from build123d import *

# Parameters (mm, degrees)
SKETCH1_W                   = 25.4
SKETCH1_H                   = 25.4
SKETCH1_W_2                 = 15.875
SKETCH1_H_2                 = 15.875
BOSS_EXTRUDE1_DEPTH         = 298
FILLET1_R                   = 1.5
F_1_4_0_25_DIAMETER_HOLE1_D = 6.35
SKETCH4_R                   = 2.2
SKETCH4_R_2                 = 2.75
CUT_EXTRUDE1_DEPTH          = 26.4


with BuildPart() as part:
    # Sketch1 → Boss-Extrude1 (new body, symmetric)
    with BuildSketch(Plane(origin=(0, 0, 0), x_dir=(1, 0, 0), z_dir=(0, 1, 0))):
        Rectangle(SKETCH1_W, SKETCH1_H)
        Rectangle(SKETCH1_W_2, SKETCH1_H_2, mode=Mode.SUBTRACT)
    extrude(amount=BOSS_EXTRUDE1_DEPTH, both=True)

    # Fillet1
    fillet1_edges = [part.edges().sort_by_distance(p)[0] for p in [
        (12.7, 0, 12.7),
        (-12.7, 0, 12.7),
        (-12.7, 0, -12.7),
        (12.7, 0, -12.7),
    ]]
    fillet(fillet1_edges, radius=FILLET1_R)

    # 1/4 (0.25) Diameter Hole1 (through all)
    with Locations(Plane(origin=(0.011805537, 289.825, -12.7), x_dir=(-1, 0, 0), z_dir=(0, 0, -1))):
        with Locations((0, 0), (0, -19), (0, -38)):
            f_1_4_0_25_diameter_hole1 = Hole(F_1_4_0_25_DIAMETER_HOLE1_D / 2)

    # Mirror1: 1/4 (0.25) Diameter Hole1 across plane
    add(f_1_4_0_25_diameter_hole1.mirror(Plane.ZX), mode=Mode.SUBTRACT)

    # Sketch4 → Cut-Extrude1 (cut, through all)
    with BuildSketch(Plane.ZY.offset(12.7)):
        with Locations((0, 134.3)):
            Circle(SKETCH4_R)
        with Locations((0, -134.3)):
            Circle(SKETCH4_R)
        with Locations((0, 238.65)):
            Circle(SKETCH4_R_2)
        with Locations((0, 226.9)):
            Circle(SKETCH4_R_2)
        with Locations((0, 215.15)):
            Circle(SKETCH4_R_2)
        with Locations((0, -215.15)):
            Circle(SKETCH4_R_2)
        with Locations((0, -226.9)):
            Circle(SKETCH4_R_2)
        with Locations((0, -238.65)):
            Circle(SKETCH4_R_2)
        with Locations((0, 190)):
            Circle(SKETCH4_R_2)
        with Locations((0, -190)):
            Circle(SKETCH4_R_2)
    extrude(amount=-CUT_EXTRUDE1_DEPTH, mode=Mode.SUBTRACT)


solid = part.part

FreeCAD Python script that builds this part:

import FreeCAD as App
import Part
import Sketcher
from FreeCAD import Vector
Q = App.Units.Quantity


def edges_at(feature, points):
    """Names of the edges that pass closest to the given points."""
    edges = feature.Shape.Edges
    near = lambda p: min(range(len(edges)), key=lambda i: edges[i].distToShape(Part.Vertex(*p))[0])
    return sorted({f"Edge{near(p) + 1}" for p in points})


def add_polygon(sketch, points):
    """Adds a closed chain of lines whose ends are joined by coincident constraints."""
    first, n = sketch.GeometryCount, len(points)
    for a, b in zip(points, points[1:] + points[:1]):
        sketch.addGeometry(Part.LineSegment(App.Vector(*a, 0), App.Vector(*b, 0)), False)
    for i in range(n):
        sketch.addConstraint(Sketcher.Constraint("Coincident", first + i, 2, first + (i + 1) % n, 1))

doc = App.newDocument("Part")
params = doc.addObject("Spreadsheet::Sheet", "Params")
for row, (alias, value) in enumerate([
    ("sketch1_width", "25.4 mm"),
    ("pad1_length", "596 mm"),
    ("fillet_radius", "1.5 mm"),
    ("sketch2_diameter", "6.35 mm"),
    ("hole_diameter", "6.35 mm"),
    ("sketch3_diameter", "4.4 mm"),
    ("sketch3_diameter2", "5.5 mm"),
], start=1):
    params.set(f"A{row}", alias)
    params.set(f"B{row}", "=" + value)
    params.setAlias(f"B{row}", alias)

body = doc.addObject("PartDesign::Body", "Body")

# Sketch on XZ plane
sketch1 = body.newObject("Sketcher::SketchObject", "Sketch")
sketch1.AttachmentSupport = (doc.getObject("XZ_Plane"), [""])
sketch1.MapMode = "FlatFace"
add_polygon(sketch1, [(-13, -13), (-13, 13), (13, 13), (13, -13)])  # lines 0-3
add_polygon(sketch1, [(8, 8), (-8, 8), (-8, -8), (8, -8)])  # lines 4-7
sketch1.addConstraint(Sketcher.Constraint("Vertical", 0))
sketch1.addConstraint(Sketcher.Constraint("Horizontal", 1))
sketch1.addConstraint(Sketcher.Constraint("Vertical", 2))
sketch1.addConstraint(Sketcher.Constraint("Horizontal", 3))
sketch1.addConstraint(Sketcher.Constraint("Horizontal", 4))
sketch1.addConstraint(Sketcher.Constraint("Vertical", 5))
sketch1.addConstraint(Sketcher.Constraint("Horizontal", 6))
sketch1.addConstraint(Sketcher.Constraint("Vertical", 7))
sketch1.addConstraint(Sketcher.Constraint("Symmetric", 0, 2, 2, 2, -1, 1))
sketch1.addConstraint(Sketcher.Constraint("Symmetric", 4, 2, 6, 2, -1, 1))
sketch1.addConstraint(Sketcher.Constraint("Equal", 3, 0))
sketch1.addConstraint(Sketcher.Constraint("Equal", 6, 5))
sketch1.addConstraint(Sketcher.Constraint("DistanceX", 1, 1, 1, 2, Q("25.4 mm")))
sketch1.addConstraint(Sketcher.Constraint("DistanceX", 4, 2, 4, 1, Q("15.875 mm")))
sketch1.setExpression("Constraints[20]", "Params.sketch1_width")
pad1 = body.newObject("PartDesign::Pad", "Pad")
pad1.Profile = sketch1
pad1.setExpression("Length", "Params.pad1_length")
pad1.Midplane = True
doc.recompute()

fillet = body.newObject("PartDesign::Fillet", "Fillet")
fillet.Base = (pad1, edges_at(pad1, [
    (12.7, 0, 12.7),
    (-12.7, 0, 12.7),
    (-12.7, 0, -12.7),
    (12.7, 0, -12.7),
]))
fillet.setExpression("Radius", "Params.fillet_radius")

# Sketch on XY plane
sketch2 = body.newObject("Sketcher::SketchObject", "Sketch001")
sketch2.AttachmentSupport = (doc.getObject("XY_Plane"), [""])
sketch2.MapMode = "FlatFace"
sketch2.AttachmentOffset = App.Placement(Vector(0, 0, -12.7), App.Rotation())
sketch2.addGeometry(Part.Circle(Vector(0, 289.8, 0), Vector(0, 0, 1), 3.2), False)
sketch2.addGeometry(Part.Circle(Vector(0, 270.8, 0), Vector(0, 0, 1), 3.2), False)
sketch2.addGeometry(Part.Circle(Vector(0, 251.8, 0), Vector(0, 0, 1), 3.2), False)
sketch2.addConstraint(Sketcher.Constraint("Equal", 0, 1))
sketch2.addConstraint(Sketcher.Constraint("Equal", 1, 2))
sketch2.addConstraint(Sketcher.Constraint("Vertical", 0, 3, 1, 3))
sketch2.addConstraint(Sketcher.Constraint("Vertical", 1, 3, 2, 3))
sketch2.addConstraint(Sketcher.Constraint("Diameter", 0, Q("6.35 mm")))
sketch2.addConstraint(Sketcher.Constraint("DistanceY", 1, 3, 0, 3, Q("19 mm")))
sketch2.addConstraint(Sketcher.Constraint("DistanceY", 2, 3, 1, 3, Q("19 mm")))
sketch2.addConstraint(Sketcher.Constraint("DistanceY", -1, 1, 0, 3, Q("289.825 mm")))
sketch2.addConstraint(Sketcher.Constraint("DistanceX", -1, 1, 0, 3, Q("0.011806 mm")))
sketch2.setExpression("Constraints[4]", "Params.sketch2_diameter")
doc.recompute()
hole = body.newObject("PartDesign::Hole", "Hole")
hole.Profile = sketch2
hole.ThreadType = "None"
hole.setExpression("Diameter", "Params.hole_diameter")
hole.DepthType = "ThroughAll"
hole.Reversed = True
doc.recompute()

mirrored = body.newObject("PartDesign::Mirrored", "Mirrored")
mirrored.Originals = [hole]
mirrored.MirrorPlane = (doc.getObject("XZ_Plane"), [""])
body.Tip = mirrored

# Sketch on YZ plane
sketch3 = body.newObject("Sketcher::SketchObject", "Sketch002")
sketch3.AttachmentSupport = (doc.getObject("YZ_Plane"), [""])
sketch3.MapMode = "FlatFace"
sketch3.AttachmentOffset = App.Placement(Vector(0, 0, -12.7), App.Rotation())
sketch3.addGeometry(Part.Circle(Vector(134.3, 0, 0), Vector(0, 0, 1), 2.2), False)
sketch3.addGeometry(Part.Circle(Vector(-134.3, 0, 0), Vector(0, 0, 1), 2.2), False)
sketch3.addGeometry(Part.Circle(Vector(238.7, 0, 0), Vector(0, 0, 1), 2.8), False)
sketch3.addGeometry(Part.Circle(Vector(226.9, 0, 0), Vector(0, 0, 1), 2.8), False)
sketch3.addGeometry(Part.Circle(Vector(215.2, 0, 0), Vector(0, 0, 1), 2.8), False)
sketch3.addGeometry(Part.Circle(Vector(-215.2, 0, 0), Vector(0, 0, 1), 2.8), False)
sketch3.addGeometry(Part.Circle(Vector(-226.9, 0, 0), Vector(0, 0, 1), 2.8), False)
sketch3.addGeometry(Part.Circle(Vector(-238.7, 0, 0), Vector(0, 0, 1), 2.8), False)
sketch3.addGeometry(Part.Circle(Vector(190, 0, 0), Vector(0, 0, 1), 2.8), False)
sketch3.addGeometry(Part.Circle(Vector(-190, 0, 0), Vector(0, 0, 1), 2.8), False)
sketch3.addConstraint(Sketcher.Constraint("Equal", 0, 1))
sketch3.addConstraint(Sketcher.Constraint("Equal", 2, 3))
sketch3.addConstraint(Sketcher.Constraint("Equal", 3, 4))
sketch3.addConstraint(Sketcher.Constraint("Equal", 4, 5))
sketch3.addConstraint(Sketcher.Constraint("Equal", 5, 6))
sketch3.addConstraint(Sketcher.Constraint("Equal", 6, 7))
sketch3.addConstraint(Sketcher.Constraint("Equal", 7, 8))
sketch3.addConstraint(Sketcher.Constraint("Equal", 8, 9))
sketch3.addConstraint(Sketcher.Constraint("Symmetric", 0, 3, 1, 3, -1, 1))
sketch3.addConstraint(Sketcher.Constraint("Symmetric", 4, 3, 5, 3, -1, 1))
sketch3.addConstraint(Sketcher.Constraint("Symmetric", 3, 3, 6, 3, -1, 1))
sketch3.addConstraint(Sketcher.Constraint("Symmetric", 2, 3, 7, 3, -1, 1))
sketch3.addConstraint(Sketcher.Constraint("Symmetric", 8, 3, 9, 3, -1, 1))
sketch3.addConstraint(Sketcher.Constraint("PointOnObject", 0, 3, -1))
sketch3.addConstraint(Sketcher.Constraint("PointOnObject", 2, 3, -1))
sketch3.addConstraint(Sketcher.Constraint("PointOnObject", 3, 3, -1))
sketch3.addConstraint(Sketcher.Constraint("PointOnObject", 4, 3, -1))
sketch3.addConstraint(Sketcher.Constraint("PointOnObject", 8, 3, -1))
sketch3.addConstraint(Sketcher.Constraint("Diameter", 0, Q("4.4 mm")))
sketch3.addConstraint(Sketcher.Constraint("Diameter", 2, Q("5.5 mm")))
sketch3.addConstraint(Sketcher.Constraint("DistanceX", -1, 1, 8, 3, Q("190 mm")))
sketch3.addConstraint(Sketcher.Constraint("DistanceX", -1, 1, 0, 3, Q("134.3 mm")))
sketch3.addConstraint(Sketcher.Constraint("DistanceX", -1, 1, 3, 3, Q("226.9 mm")))
sketch3.addConstraint(Sketcher.Constraint("DistanceX", 4, 3, 2, 3, Q("23.5 mm")))
sketch3.addConstraint(Sketcher.Constraint("DistanceX", 5, 3, 4, 3, Q("430.3 mm")))
sketch3.setExpression("Constraints[18]", "Params.sketch3_diameter")
sketch3.setExpression("Constraints[19]", "Params.sketch3_diameter2")
pocket1 = body.newObject("PartDesign::Pocket", "Pocket")
pocket1.Profile = sketch3
pocket1.Type = "ThroughAll"
pocket1.Reversed = True

doc.recompute()
